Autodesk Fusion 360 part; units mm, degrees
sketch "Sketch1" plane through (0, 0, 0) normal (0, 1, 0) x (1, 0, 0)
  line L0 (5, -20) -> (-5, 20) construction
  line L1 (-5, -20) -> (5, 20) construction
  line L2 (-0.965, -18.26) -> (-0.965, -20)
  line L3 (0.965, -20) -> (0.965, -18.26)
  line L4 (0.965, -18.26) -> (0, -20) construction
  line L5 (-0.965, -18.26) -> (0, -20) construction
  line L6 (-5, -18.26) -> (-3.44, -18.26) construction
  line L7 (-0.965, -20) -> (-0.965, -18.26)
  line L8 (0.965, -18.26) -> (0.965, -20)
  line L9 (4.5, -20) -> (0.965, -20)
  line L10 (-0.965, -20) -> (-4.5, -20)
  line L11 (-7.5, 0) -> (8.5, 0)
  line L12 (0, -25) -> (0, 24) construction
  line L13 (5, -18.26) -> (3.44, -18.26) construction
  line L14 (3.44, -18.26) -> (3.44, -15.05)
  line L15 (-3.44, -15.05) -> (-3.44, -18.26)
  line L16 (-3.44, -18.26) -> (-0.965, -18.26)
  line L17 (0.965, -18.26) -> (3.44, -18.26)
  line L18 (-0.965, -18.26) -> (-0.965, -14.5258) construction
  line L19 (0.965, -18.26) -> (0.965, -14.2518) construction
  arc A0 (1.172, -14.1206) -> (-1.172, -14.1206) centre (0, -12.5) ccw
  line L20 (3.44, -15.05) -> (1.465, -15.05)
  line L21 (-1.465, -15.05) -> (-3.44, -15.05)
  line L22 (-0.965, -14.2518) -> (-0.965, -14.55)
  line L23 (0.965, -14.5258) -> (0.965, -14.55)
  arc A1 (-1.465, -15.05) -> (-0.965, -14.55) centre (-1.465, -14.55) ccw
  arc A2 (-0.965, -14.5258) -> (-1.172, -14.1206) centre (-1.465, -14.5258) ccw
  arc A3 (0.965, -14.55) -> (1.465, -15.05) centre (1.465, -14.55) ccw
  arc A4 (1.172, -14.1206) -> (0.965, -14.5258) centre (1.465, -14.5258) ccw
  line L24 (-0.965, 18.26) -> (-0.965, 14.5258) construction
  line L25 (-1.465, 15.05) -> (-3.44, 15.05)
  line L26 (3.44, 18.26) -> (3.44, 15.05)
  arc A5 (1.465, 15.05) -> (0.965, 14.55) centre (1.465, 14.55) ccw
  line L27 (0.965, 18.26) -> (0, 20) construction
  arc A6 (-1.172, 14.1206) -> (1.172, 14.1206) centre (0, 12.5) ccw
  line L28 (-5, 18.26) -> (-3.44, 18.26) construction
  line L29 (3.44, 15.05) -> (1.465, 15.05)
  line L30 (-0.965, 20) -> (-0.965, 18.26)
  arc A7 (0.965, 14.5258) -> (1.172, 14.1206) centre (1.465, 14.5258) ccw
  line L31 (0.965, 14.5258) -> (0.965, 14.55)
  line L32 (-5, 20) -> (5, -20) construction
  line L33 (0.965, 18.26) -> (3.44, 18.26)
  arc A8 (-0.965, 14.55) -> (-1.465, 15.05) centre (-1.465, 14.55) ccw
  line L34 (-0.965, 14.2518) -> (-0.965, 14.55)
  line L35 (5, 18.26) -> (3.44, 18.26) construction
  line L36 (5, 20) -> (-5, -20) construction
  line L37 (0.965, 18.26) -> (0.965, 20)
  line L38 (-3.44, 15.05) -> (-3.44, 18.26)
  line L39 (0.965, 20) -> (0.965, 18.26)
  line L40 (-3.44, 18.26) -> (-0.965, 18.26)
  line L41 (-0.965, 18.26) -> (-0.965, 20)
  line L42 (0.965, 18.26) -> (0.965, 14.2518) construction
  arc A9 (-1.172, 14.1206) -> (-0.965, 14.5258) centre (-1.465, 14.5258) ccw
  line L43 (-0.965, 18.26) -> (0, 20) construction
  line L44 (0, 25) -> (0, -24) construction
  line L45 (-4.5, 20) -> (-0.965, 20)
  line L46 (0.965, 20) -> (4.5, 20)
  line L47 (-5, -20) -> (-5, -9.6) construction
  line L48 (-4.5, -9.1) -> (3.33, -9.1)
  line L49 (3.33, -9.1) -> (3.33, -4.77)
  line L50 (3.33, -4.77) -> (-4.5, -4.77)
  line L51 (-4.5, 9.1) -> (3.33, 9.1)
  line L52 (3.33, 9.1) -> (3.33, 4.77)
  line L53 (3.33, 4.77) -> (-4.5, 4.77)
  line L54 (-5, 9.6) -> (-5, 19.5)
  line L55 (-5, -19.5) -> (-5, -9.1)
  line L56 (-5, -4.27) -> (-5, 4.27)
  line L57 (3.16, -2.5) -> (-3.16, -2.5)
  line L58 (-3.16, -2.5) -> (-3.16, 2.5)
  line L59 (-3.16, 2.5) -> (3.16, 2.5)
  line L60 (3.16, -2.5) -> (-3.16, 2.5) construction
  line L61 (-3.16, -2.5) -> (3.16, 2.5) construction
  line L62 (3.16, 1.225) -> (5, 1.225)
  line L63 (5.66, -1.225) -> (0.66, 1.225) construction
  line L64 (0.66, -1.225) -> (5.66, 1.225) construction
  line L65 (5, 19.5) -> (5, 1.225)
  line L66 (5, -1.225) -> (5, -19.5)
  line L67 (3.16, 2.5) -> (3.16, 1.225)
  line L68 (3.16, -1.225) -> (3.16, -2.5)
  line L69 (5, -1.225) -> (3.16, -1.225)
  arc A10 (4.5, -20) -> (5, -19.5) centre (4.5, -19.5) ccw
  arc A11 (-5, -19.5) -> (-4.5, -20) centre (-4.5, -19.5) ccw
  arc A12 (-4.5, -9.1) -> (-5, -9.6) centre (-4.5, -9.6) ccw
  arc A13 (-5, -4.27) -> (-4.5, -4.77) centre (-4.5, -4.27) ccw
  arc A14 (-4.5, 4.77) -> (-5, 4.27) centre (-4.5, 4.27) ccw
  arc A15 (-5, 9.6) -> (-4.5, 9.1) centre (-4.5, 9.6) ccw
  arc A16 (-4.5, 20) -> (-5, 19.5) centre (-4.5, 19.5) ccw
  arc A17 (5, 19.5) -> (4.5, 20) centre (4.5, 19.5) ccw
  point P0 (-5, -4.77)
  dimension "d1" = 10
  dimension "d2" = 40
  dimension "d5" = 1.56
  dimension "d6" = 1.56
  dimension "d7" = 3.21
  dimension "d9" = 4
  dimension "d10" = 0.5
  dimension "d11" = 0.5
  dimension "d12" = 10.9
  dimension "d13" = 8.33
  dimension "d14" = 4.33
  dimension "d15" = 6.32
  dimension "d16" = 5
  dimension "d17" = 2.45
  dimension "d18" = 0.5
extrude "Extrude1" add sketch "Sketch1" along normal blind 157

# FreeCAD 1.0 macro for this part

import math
import FreeCAD as App
import Part
import Sketcher

V = App.Vector
Q = App.Units.Quantity

doc = App.newDocument("Part")
body = doc.addObject("PartDesign::Body", "Body")

sketch1 = body.newObject("Sketcher::SketchObject", "Sketch")
sketch1.AttachmentSupport = (doc.getObject("XZ_Plane"), [""])
sketch1.MapMode = "FlatFace"
sketch1.addGeometry([
    Part.LineSegment(V(-0.965, 20, 0), V(-0.965, 18.26, 0)),
    Part.LineSegment(V(-0.965, 18.26, 0), V(-3.44, 18.26, 0)),
    Part.LineSegment(V(-3.44, 18.26, 0), V(-3.44, 15.05, 0)),
    Part.LineSegment(V(-3.44, 15.05, 0), V(-1.465, 15.05, 0)),
    Part.ArcOfCircle(Part.Circle(V(-1.465, 14.55, 0), V(0, 0, 1), 0.5), math.radians(0), math.radians(90)),
    Part.LineSegment(V(-0.965, 14.55, 0), V(-0.965, 14.526, 0)),
    Part.ArcOfCircle(Part.Circle(V(-1.465, 14.526, 0), V(0, 0, 1), 0.5), math.radians(-54), math.radians(0)),
    Part.ArcOfCircle(Part.Circle(V(0, 12.5, 0), V(0, 0, 1), 2), math.radians(126), math.radians(414)),
    Part.ArcOfCircle(Part.Circle(V(1.465, 14.526, 0), V(0, 0, 1), 0.5), math.radians(180), math.radians(234)),
    Part.LineSegment(V(0.965, 14.526, 0), V(0.965, 14.55, 0)),
    Part.ArcOfCircle(Part.Circle(V(1.465, 14.55, 0), V(0, 0, 1), 0.5), math.radians(90), math.radians(180)),
    Part.LineSegment(V(1.465, 15.05, 0), V(3.44, 15.05, 0)),
    Part.LineSegment(V(3.44, 15.05, 0), V(3.44, 18.26, 0)),
    Part.LineSegment(V(3.44, 18.26, 0), V(0.965, 18.26, 0)),
    Part.LineSegment(V(0.965, 18.26, 0), V(0.965, 20, 0)),
    Part.LineSegment(V(0.965, 20, 0), V(4.5, 20, 0)),
    Part.ArcOfCircle(Part.Circle(V(4.5, 19.5, 0), V(0, 0, 1), 0.5), math.radians(0), math.radians(90)),
    Part.LineSegment(V(5, 19.5, 0), V(5, 1.225, 0)),
    Part.LineSegment(V(5, 1.225, 0), V(3.16, 1.225, 0)),
    Part.LineSegment(V(3.16, 1.225, 0), V(3.16, 2.5, 0)),
    Part.LineSegment(V(3.16, 2.5, 0), V(-3.16, 2.5, 0)),
    Part.LineSegment(V(-3.16, 2.5, 0), V(-3.16, -2.5, 0)),
    Part.LineSegment(V(-3.16, -2.5, 0), V(3.16, -2.5, 0)),
    Part.LineSegment(V(3.16, -2.5, 0), V(3.16, -1.225, 0)),
    Part.LineSegment(V(3.16, -1.225, 0), V(5, -1.225, 0)),
    Part.LineSegment(V(5, -1.225, 0), V(5, -19.5, 0)),
    Part.ArcOfCircle(Part.Circle(V(4.5, -19.5, 0), V(0, 0, 1), 0.5), math.radians(-90), math.radians(0)),
    Part.LineSegment(V(4.5, -20, 0), V(0.965, -20, 0)),
    Part.LineSegment(V(0.965, -20, 0), V(0.965, -18.26, 0)),
    Part.LineSegment(V(0.965, -18.26, 0), V(3.44, -18.26, 0)),
    Part.LineSegment(V(3.44, -18.26, 0), V(3.44, -15.05, 0)),
    Part.LineSegment(V(3.44, -15.05, 0), V(1.465, -15.05, 0)),
    Part.ArcOfCircle(Part.Circle(V(1.465, -14.55, 0), V(0, 0, 1), 0.5), math.radians(180), math.radians(270)),
    Part.LineSegment(V(0.965, -14.55, 0), V(0.965, -14.526, 0)),
    Part.ArcOfCircle(Part.Circle(V(1.465, -14.526, 0), V(0, 0, 1), 0.5), math.radians(126), math.radians(180)),
    Part.ArcOfCircle(Part.Circle(V(0, -12.5, 0), V(0, 0, 1), 2), math.radians(-54), math.radians(234)),
    Part.ArcOfCircle(Part.Circle(V(-1.465, -14.526, 0), V(0, 0, 1), 0.5), math.radians(0), math.radians(54)),
    Part.LineSegment(V(-0.965, -14.526, 0), V(-0.965, -14.55, 0)),
    Part.ArcOfCircle(Part.Circle(V(-1.465, -14.55, 0), V(0, 0, 1), 0.5), math.radians(-90), math.radians(0)),
    Part.LineSegment(V(-1.465, -15.05, 0), V(-3.44, -15.05, 0)),
    Part.LineSegment(V(-3.44, -15.05, 0), V(-3.44, -18.26, 0)),
    Part.LineSegment(V(-3.44, -18.26, 0), V(-0.965, -18.26, 0)),
    Part.LineSegment(V(-0.965, -18.26, 0), V(-0.965, -20, 0)),
    Part.LineSegment(V(-0.965, -20, 0), V(-4.5, -20, 0)),
    Part.ArcOfCircle(Part.Circle(V(-4.5, -19.5, 0), V(0, 0, 1), 0.5), math.radians(180), math.radians(270)),
    Part.LineSegment(V(-5, -19.5, 0), V(-5, -9.6, 0)),
    Part.ArcOfCircle(Part.Circle(V(-4.5, -9.6, 0), V(0, 0, 1), 0.5), math.radians(90), math.radians(180)),
    Part.LineSegment(V(-4.5, -9.1, 0), V(3.33, -9.1, 0)),
    Part.LineSegment(V(3.33, -9.1, 0), V(3.33, -4.77, 0)),
    Part.LineSegment(V(3.33, -4.77, 0), V(-4.5, -4.77, 0)),
    Part.ArcOfCircle(Part.Circle(V(-4.5, -4.27, 0), V(0, 0, 1), 0.5), math.radians(180), math.radians(270)),
    Part.LineSegment(V(-5, -4.27, 0), V(-5, 4.27, 0)),
    Part.ArcOfCircle(Part.Circle(V(-4.5, 4.27, 0), V(0, 0, 1), 0.5), math.radians(90), math.radians(180)),
    Part.LineSegment(V(-4.5, 4.77, 0), V(3.33, 4.77, 0)),
    Part.LineSegment(V(3.33, 4.77, 0), V(3.33, 9.1, 0)),
    Part.LineSegment(V(3.33, 9.1, 0), V(-4.5, 9.1, 0)),
    Part.ArcOfCircle(Part.Circle(V(-4.5, 9.6, 0), V(0, 0, 1), 0.5), math.radians(180), math.radians(270)),
    Part.LineSegment(V(-5, 9.6, 0), V(-5, 19.5, 0)),
    Part.ArcOfCircle(Part.Circle(V(-4.5, 19.5, 0), V(0, 0, 1), 0.5), math.radians(90), math.radians(180)),
    Part.LineSegment(V(-4.5, 20, 0), V(-0.965, 20, 0)),
], False)
sketch1.addConstraint([
    Sketcher.Constraint("Coincident", 0, 2, 1, 1),
    Sketcher.Constraint("Coincident", 1, 2, 2, 1),
    Sketcher.Constraint("Coincident", 2, 2, 3, 1),
    Sketcher.Constraint("Tangent", 3, 2, 4, 2),
    Sketcher.Constraint("Tangent", 4, 1, 5, 1),
    Sketcher.Constraint("Tangent", 5, 2, 6, 2),
    Sketcher.Constraint("Tangent", 6, 1, 7, 1),
    Sketcher.Constraint("Tangent", 7, 2, 8, 2),
    Sketcher.Constraint("Tangent", 8, 1, 9, 1),
    Sketcher.Constraint("Tangent", 9, 2, 10, 2),
    Sketcher.Constraint("Tangent", 10, 1, 11, 1),
    Sketcher.Constraint("Coincident", 11, 2, 12, 1),
    Sketcher.Constraint("Coincident", 12, 2, 13, 1),
    Sketcher.Constraint("Coincident", 13, 2, 14, 1),
    Sketcher.Constraint("Coincident", 14, 2, 15, 1),
    Sketcher.Constraint("Tangent", 15, 2, 16, 2),
    Sketcher.Constraint("Tangent", 16, 1, 17, 1),
    Sketcher.Constraint("Coincident", 17, 2, 18, 1),
    Sketcher.Constraint("Coincident", 18, 2, 19, 1),
    Sketcher.Constraint("Coincident", 19, 2, 20, 1),
    Sketcher.Constraint("Coincident", 20, 2, 21, 1),
    Sketcher.Constraint("Coincident", 21, 2, 22, 1),
    Sketcher.Constraint("Coincident", 22, 2, 23, 1),
    Sketcher.Constraint("Coincident", 23, 2, 24, 1),
    Sketcher.Constraint("Coincident", 24, 2, 25, 1),
    Sketcher.Constraint("Tangent", 25, 2, 26, 2),
    Sketcher.Constraint("Tangent", 26, 1, 27, 1),
    Sketcher.Constraint("Coincident", 27, 2, 28, 1),
    Sketcher.Constraint("Coincident", 28, 2, 29, 1),
    Sketcher.Constraint("Coincident", 29, 2, 30, 1),
    Sketcher.Constraint("Coincident", 30, 2, 31, 1),
    Sketcher.Constraint("Tangent", 31, 2, 32, 2),
    Sketcher.Constraint("Tangent", 32, 1, 33, 1),
    Sketcher.Constraint("Tangent", 33, 2, 34, 2),
    Sketcher.Constraint("Tangent", 34, 1, 35, 1),
    Sketcher.Constraint("Tangent", 35, 2, 36, 2),
    Sketcher.Constraint("Tangent", 36, 1, 37, 1),
    Sketcher.Constraint("Tangent", 37, 2, 38, 2),
    Sketcher.Constraint("Tangent", 38, 1, 39, 1),
    Sketcher.Constraint("Coincident", 39, 2, 40, 1),
    Sketcher.Constraint("Coincident", 40, 2, 41, 1),
    Sketcher.Constraint("Coincident", 41, 2, 42, 1),
    Sketcher.Constraint("Coincident", 42, 2, 43, 1),
    Sketcher.Constraint("Tangent", 43, 2, 44, 2),
    Sketcher.Constraint("Tangent", 44, 1, 45, 1),
    Sketcher.Constraint("Tangent", 45, 2, 46, 2),
    Sketcher.Constraint("Tangent", 46, 1, 47, 1),
    Sketcher.Constraint("Coincident", 47, 2, 48, 1),
    Sketcher.Constraint("Coincident", 48, 2, 49, 1),
    Sketcher.Constraint("Tangent", 49, 2, 50, 2),
    Sketcher.Constraint("Tangent", 50, 1, 51, 1),
    Sketcher.Constraint("Tangent", 51, 2, 52, 2),
    Sketcher.Constraint("Tangent", 52, 1, 53, 1),
    Sketcher.Constraint("Coincident", 53, 2, 54, 1),
    Sketcher.Constraint("Coincident", 54, 2, 55, 1),
    Sketcher.Constraint("Tangent", 55, 2, 56, 2),
    Sketcher.Constraint("Tangent", 56, 1, 57, 1),
    Sketcher.Constraint("Tangent", 57, 2, 58, 2),
    Sketcher.Constraint("Tangent", 58, 1, 59, 1),
    Sketcher.Constraint("Coincident", 59, 2, 0, 1),
    Sketcher.Constraint("Vertical", 0),
    Sketcher.Constraint("Horizontal", 1),
    Sketcher.Constraint("Vertical", 2),
    Sketcher.Constraint("Horizontal", 3),
    Sketcher.Constraint("Vertical", 5),
    Sketcher.Constraint("Vertical", 9),
    Sketcher.Constraint("Horizontal", 11),
    Sketcher.Constraint("Vertical", 12),
    Sketcher.Constraint("Horizontal", 13),
    Sketcher.Constraint("Vertical", 14),
    Sketcher.Constraint("Horizontal", 15),
    Sketcher.Constraint("Vertical", 17),
    Sketcher.Constraint("Horizontal", 18),
    Sketcher.Constraint("Vertical", 19),
    Sketcher.Constraint("Horizontal", 20),
    Sketcher.Constraint("Vertical", 21),
    Sketcher.Constraint("Horizontal", 22),
    Sketcher.Constraint("Vertical", 23),
    Sketcher.Constraint("Horizontal", 24),
    Sketcher.Constraint("Vertical", 25),
    Sketcher.Constraint("Horizontal", 27),
    Sketcher.Constraint("Vertical", 28),
    Sketcher.Constraint("Horizontal", 29),
    Sketcher.Constraint("Vertical", 30),
    Sketcher.Constraint("Horizontal", 31),
    Sketcher.Constraint("Vertical", 33),
    Sketcher.Constraint("Vertical", 37),
    Sketcher.Constraint("Horizontal", 39),
    Sketcher.Constraint("Vertical", 40),
    Sketcher.Constraint("Horizontal", 41),
    Sketcher.Constraint("Vertical", 42),
    Sketcher.Constraint("Horizontal", 43),
    Sketcher.Constraint("Vertical", 45),
    Sketcher.Constraint("Horizontal", 47),
    Sketcher.Constraint("Vertical", 48),
    Sketcher.Constraint("Horizontal", 49),
    Sketcher.Constraint("Vertical", 51),
    Sketcher.Constraint("Horizontal", 53),
    Sketcher.Constraint("Vertical", 54),
    Sketcher.Constraint("Horizontal", 55),
    Sketcher.Constraint("Vertical", 57),
    Sketcher.Constraint("Horizontal", 59),
    Sketcher.Constraint("Equal", 4, 6),
    Sketcher.Constraint("Equal", 6, 8),
    Sketcher.Constraint("Equal", 8, 10),
    Sketcher.Constraint("Equal", 10, 16),
    Sketcher.Constraint("Equal", 16, 26),
    Sketcher.Constraint("Equal", 26, 32),
    Sketcher.Constraint("Equal", 32, 34),
    Sketcher.Constraint("Equal", 7, 35),
    Sketcher.Constraint("Equal", 34, 36),
    Sketcher.Constraint("Equal", 36, 38),
    Sketcher.Constraint("Equal", 38, 44),
    Sketcher.Constraint("Equal", 44, 46),
    Sketcher.Constraint("Equal", 46, 50),
    Sketcher.Constraint("Equal", 50, 52),
    Sketcher.Constraint("Equal", 52, 56),
    Sketcher.Constraint("Equal", 56, 58),
    Sketcher.Constraint("Symmetric", 4, 3, 32, 3, -1, 1),
    Sketcher.Constraint("Symmetric", 7, 3, 35, 3, -1, 1),
    Sketcher.Constraint("Symmetric", 10, 3, 38, 3, -1, 1),
    Sketcher.Constraint("Symmetric", 16, 3, 44, 3, -1, 1),
    Sketcher.Constraint("Symmetric", 26, 3, 58, 3, -1, 1),
    Sketcher.Constraint("Symmetric", 19, 2, 21, 2, -1, 1),
    Sketcher.Constraint("Symmetric", 0, 2, 28, 2, -1, 1),
    Sketcher.Constraint("Symmetric", 12, 2, 40, 2, -1, 1),
    Sketcher.Constraint("Symmetric", 6, 3, 8, 3, -2),
    Sketcher.Constraint("Symmetric", 26, 3, 44, 3, -2),
    Sketcher.Constraint("Symmetric", 2, 2, 11, 2, -2),
    Sketcher.Constraint("Symmetric", 0, 2, 13, 2, -2),
    Sketcher.Constraint("Symmetric", 18, 2, 23, 2, -1),
    Sketcher.Constraint("Symmetric", 48, 2, 53, 2, -1),
    Sketcher.Constraint("Vertical", 46, 3, 50, 3),
    Sketcher.Constraint("Vertical", 0, 2, 4, 1),
    Sketcher.Constraint("Vertical", 12, 2, 29, 2),
    Sketcher.Constraint("Vertical", 37, 2, 41, 2),
    Sketcher.Constraint("Equal", 48, 54),
    Sketcher.Constraint("Radius", 7, Q("2 mm")),
    Sketcher.Constraint("Radius", 4, Q("0.5 mm")),
    Sketcher.Constraint("DistanceY", 21, 2, 21, 1, Q("5 mm")),
    Sketcher.Constraint("DistanceX", -1, 1, 16, 1, Q("5 mm")),
    Sketcher.Constraint("DistanceX", 20, 2, 20, 1, Q("6.32 mm")),
    Sketcher.Constraint("DistanceY", 2, 2, 2, 1, Q("3.21 mm")),
    Sketcher.Constraint("DistanceY", 48, 1, 48, 2, Q("4.33 mm")),
    Sketcher.Constraint("DistanceY", 45, 1, 45, 2, Q("9.9 mm")),
    Sketcher.Constraint("DistanceY", -1, 1, 14, 2, Q("20 mm")),
    Sketcher.Constraint("DistanceX", 47, 1, 47, 2, Q("7.83 mm")),
    Sketcher.Constraint("DistanceY", 0, 2, 0, 1, Q("1.74 mm")),
    Sketcher.Constraint("DistanceY", -1, 1, 7, 3, Q("12.5 mm")),
    Sketcher.Constraint("DistanceX", 1, 2, 1, 1, Q("2.475 mm")),
    Sketcher.Constraint("DistanceX", 15, 1, 15, 2, Q("3.535 mm")),
    Sketcher.Constraint("DistanceY", 17, 2, 17, 1, Q("18.275 mm")),
])
pad1 = body.newObject("PartDesign::Pad", "Pad")
pad1.Profile = sketch1
pad1.Length = 157
pad1.Reversed = True

doc.recompute()
